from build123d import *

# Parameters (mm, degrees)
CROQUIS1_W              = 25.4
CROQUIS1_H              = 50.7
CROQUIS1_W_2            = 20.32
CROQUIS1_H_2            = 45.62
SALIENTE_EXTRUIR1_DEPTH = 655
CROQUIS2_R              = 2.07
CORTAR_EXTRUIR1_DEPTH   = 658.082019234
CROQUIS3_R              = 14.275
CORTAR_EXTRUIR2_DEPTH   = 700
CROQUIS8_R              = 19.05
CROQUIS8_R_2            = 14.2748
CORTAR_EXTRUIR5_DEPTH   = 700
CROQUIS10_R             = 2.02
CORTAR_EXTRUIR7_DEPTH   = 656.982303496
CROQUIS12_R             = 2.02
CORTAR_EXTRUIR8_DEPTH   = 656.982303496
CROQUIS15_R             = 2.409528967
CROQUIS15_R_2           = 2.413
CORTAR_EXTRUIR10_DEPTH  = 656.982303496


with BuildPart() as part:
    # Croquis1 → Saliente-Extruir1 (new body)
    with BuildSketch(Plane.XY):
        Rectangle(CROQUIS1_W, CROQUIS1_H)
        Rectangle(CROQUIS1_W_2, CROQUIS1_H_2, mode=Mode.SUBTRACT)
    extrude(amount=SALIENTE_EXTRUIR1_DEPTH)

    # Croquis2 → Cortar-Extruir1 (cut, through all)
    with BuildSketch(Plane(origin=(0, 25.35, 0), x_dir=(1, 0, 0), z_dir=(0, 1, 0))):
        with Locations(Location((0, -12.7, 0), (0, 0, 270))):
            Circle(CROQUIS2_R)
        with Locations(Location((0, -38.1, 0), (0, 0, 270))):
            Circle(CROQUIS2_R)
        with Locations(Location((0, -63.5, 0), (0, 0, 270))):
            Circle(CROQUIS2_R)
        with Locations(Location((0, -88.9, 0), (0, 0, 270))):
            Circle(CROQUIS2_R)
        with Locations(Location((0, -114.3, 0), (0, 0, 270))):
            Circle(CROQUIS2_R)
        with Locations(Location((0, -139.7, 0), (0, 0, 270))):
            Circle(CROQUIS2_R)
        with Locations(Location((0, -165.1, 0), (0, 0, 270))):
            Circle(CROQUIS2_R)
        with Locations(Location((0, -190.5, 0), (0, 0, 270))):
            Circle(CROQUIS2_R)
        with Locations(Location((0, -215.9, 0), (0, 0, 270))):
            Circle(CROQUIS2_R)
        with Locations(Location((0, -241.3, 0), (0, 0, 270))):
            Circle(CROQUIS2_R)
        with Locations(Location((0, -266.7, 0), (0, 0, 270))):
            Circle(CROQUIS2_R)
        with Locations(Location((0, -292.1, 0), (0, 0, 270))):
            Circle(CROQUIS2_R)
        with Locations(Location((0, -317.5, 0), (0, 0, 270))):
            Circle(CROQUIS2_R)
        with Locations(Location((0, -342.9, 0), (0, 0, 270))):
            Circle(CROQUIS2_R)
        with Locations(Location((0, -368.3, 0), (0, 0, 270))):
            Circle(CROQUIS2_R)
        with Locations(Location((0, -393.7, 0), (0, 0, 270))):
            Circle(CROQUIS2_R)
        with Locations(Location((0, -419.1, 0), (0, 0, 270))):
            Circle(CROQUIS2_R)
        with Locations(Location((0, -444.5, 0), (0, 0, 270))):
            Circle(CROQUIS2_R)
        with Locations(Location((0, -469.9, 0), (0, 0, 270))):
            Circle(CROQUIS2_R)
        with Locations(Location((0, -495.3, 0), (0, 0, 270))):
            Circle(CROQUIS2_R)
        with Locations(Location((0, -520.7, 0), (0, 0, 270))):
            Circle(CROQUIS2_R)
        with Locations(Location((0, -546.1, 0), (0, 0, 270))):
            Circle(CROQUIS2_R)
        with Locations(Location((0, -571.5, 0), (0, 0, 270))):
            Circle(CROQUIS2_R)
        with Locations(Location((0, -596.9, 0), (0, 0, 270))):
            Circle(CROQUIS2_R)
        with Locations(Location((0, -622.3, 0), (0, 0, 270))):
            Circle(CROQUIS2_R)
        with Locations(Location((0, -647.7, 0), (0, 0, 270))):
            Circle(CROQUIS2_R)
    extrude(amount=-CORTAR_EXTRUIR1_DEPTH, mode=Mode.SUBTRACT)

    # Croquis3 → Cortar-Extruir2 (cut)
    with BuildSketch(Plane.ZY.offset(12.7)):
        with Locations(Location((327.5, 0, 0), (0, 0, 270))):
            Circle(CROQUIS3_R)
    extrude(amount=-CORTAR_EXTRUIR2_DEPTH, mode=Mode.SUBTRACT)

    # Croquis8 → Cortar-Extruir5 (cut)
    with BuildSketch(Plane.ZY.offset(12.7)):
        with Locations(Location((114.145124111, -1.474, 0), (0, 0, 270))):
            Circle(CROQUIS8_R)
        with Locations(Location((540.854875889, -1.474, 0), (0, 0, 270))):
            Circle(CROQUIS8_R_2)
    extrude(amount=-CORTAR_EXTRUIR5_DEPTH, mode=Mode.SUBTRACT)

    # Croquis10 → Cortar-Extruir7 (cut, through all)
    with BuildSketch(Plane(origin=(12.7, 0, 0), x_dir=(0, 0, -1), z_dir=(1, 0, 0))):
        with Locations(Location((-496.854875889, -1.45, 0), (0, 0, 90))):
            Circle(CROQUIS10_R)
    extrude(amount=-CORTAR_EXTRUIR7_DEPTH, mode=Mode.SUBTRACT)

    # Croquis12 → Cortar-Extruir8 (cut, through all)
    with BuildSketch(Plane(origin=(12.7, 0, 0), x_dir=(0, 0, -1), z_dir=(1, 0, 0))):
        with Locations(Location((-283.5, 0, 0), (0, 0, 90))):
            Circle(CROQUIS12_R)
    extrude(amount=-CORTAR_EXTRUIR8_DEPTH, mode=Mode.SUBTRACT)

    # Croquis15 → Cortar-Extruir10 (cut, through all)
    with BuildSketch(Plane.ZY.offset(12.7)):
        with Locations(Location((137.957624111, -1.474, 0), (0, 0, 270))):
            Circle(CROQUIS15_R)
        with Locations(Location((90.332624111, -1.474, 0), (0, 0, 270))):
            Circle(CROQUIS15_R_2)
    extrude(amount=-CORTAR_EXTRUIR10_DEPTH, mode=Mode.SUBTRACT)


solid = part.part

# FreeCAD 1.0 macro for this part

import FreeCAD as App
import Part
import Sketcher

V = App.Vector
Q = App.Units.Quantity

doc = App.newDocument("Part")
body = doc.addObject("PartDesign::Body", "Body")

# Sketch on XY plane
sketch1 = doc.addObject("Sketcher::SketchObject", "Sketch")
body.addObject(sketch1)
sketch1.AttachmentSupport = (doc.XY_Plane, [""])
sketch1.MapMode = "FlatFace"
sketch1.addGeometry(Part.LineSegment(V(-13, 25, 0), V(-13, -25, 0)), False)
sketch1.addGeometry(Part.LineSegment(V(-13, -25, 0), V(13, -25, 0)), False)
sketch1.addGeometry(Part.LineSegment(V(13, -25, 0), V(13, 25, 0)), False)
sketch1.addGeometry(Part.LineSegment(V(13, 25, 0), V(-13, 25, 0)), False)
sketch1.addGeometry(Part.LineSegment(V(10, -23, 0), V(-10, -23, 0)), False)
sketch1.addGeometry(Part.LineSegment(V(-10, -23, 0), V(-10, 23, 0)), False)
sketch1.addGeometry(Part.LineSegment(V(-10, 23, 0), V(10, 23, 0)), False)
sketch1.addGeometry(Part.LineSegment(V(10, 23, 0), V(10, -23, 0)), False)
sketch1.addConstraint(Sketcher.Constraint("Coincident", 0, 2, 1, 1))
sketch1.addConstraint(Sketcher.Constraint("Coincident", 1, 2, 2, 1))
sketch1.addConstraint(Sketcher.Constraint("Coincident", 2, 2, 3, 1))
sketch1.addConstraint(Sketcher.Constraint("Coincident", 3, 2, 0, 1))
sketch1.addConstraint(Sketcher.Constraint("Coincident", 4, 2, 5, 1))
sketch1.addConstraint(Sketcher.Constraint("Coincident", 5, 2, 6, 1))
sketch1.addConstraint(Sketcher.Constraint("Coincident", 6, 2, 7, 1))
sketch1.addConstraint(Sketcher.Constraint("Coincident", 7, 2, 4, 1))
sketch1.addConstraint(Sketcher.Constraint("Vertical", 0))
sketch1.addConstraint(Sketcher.Constraint("Horizontal", 1))
sketch1.addConstraint(Sketcher.Constraint("Vertical", 2))
sketch1.addConstraint(Sketcher.Constraint("Horizontal", 3))
sketch1.addConstraint(Sketcher.Constraint("Horizontal", 4))
sketch1.addConstraint(Sketcher.Constraint("Vertical", 5))
sketch1.addConstraint(Sketcher.Constraint("Horizontal", 6))
sketch1.addConstraint(Sketcher.Constraint("Vertical", 7))
sketch1.addConstraint(Sketcher.Constraint("Symmetric", 0, 2, 2, 2, -1, 1))
sketch1.addConstraint(Sketcher.Constraint("Symmetric", 4, 2, 6, 2, -1, 1))
sketch1.addConstraint(Sketcher.Constraint("DistanceX", 1, 1, 1, 2, Q("1 in")))
sketch1.addConstraint(Sketcher.Constraint("DistanceX", 4, 2, 4, 1, Q("0.8 in")))
sketch1.addConstraint(Sketcher.Constraint("DistanceY", 0, 2, 4, 2, Q("0.1 in")))
sketch1.addConstraint(Sketcher.Constraint("DistanceY", 0, 2, 0, 1, 50.7))
pad1 = doc.addObject("PartDesign::Pad", "Pad")
body.addObject(pad1)
pad1.Profile = sketch1
pad1.Length = 655

# Sketch on XZ plane
sketch2 = doc.addObject("Sketcher::SketchObject", "Sketch001")
body.addObject(sketch2)
sketch2.AttachmentSupport = (doc.XZ_Plane, [""])
sketch2.MapMode = "FlatFace"
sketch2.AttachmentOffset = App.Placement(V(0, 0, -25.35), App.Rotation())
sketch2.addGeometry(Part.Circle(V(0, 12.7, 0), V(0, 0, 1), 2.1), False)
sketch2.addGeometry(Part.Circle(V(0, 38.1, 0), V(0, 0, 1), 2.1), False)
sketch2.addGeometry(Part.Circle(V(0, 63.5, 0), V(0, 0, 1), 2.1), False)
sketch2.addGeometry(Part.Circle(V(0, 88.9, 0), V(0, 0, 1), 2.1), False)
sketch2.addGeometry(Part.Circle(V(0, 114.3, 0), V(0, 0, 1), 2.1), False)
sketch2.addGeometry(Part.Circle(V(0, 139.7, 0), V(0, 0, 1), 2.1), False)
sketch2.addGeometry(Part.Circle(V(0, 165.1, 0), V(0, 0, 1), 2.1), False)
sketch2.addGeometry(Part.Circle(V(0, 190.5, 0), V(0, 0, 1), 2.1), False)
sketch2.addGeometry(Part.Circle(V(0, 215.9, 0), V(0, 0, 1), 2.1), False)
sketch2.addGeometry(Part.Circle(V(0, 241.3, 0), V(0, 0, 1), 2.1), False)
sketch2.addGeometry(Part.Circle(V(0, 266.7, 0), V(0, 0, 1), 2.1), False)
sketch2.addGeometry(Part.Circle(V(0, 292.1, 0), V(0, 0, 1), 2.1), False)
sketch2.addGeometry(Part.Circle(V(0, 317.5, 0), V(0, 0, 1), 2.1), False)
sketch2.addGeometry(Part.Circle(V(0, 342.9, 0), V(0, 0, 1), 2.1), False)
sketch2.addGeometry(Part.Circle(V(0, 368.3, 0), V(0, 0, 1), 2.1), False)
sketch2.addGeometry(Part.Circle(V(0, 393.7, 0), V(0, 0, 1), 2.1), False)
sketch2.addGeometry(Part.Circle(V(0, 419.1, 0), V(0, 0, 1), 2.1), False)
sketch2.addGeometry(Part.Circle(V(0, 444.5, 0), V(0, 0, 1), 2.1), False)
sketch2.addGeometry(Part.Circle(V(0, 469.9, 0), V(0, 0, 1), 2.1), False)
sketch2.addGeometry(Part.Circle(V(0, 495.3, 0), V(0, 0, 1), 2.1), False)
sketch2.addGeometry(Part.Circle(V(0, 520.7, 0), V(0, 0, 1), 2.1), False)
sketch2.addGeometry(Part.Circle(V(0, 546.1, 0), V(0, 0, 1), 2.1), False)
sketch2.addGeometry(Part.Circle(V(0, 571.5, 0), V(0, 0, 1), 2.1), False)
sketch2.addGeometry(Part.Circle(V(0, 596.9, 0), V(0, 0, 1), 2.1), False)
sketch2.addGeometry(Part.Circle(V(0, 622.3, 0), V(0, 0, 1), 2.1), False)
sketch2.addGeometry(Part.Circle(V(0, 647.7, 0), V(0, 0, 1), 2.1), False)
sketch2.addConstraint(Sketcher.Constraint("Equal", 0, 1))
sketch2.addConstraint(Sketcher.Constraint("Equal", 1, 2))
sketch2.addConstraint(Sketcher.Constraint("Equal", 2, 3))
sketch2.addConstraint(Sketcher.Constraint("Equal", 3, 4))
sketch2.addConstraint(Sketcher.Constraint("Equal", 4, 5))
sketch2.addConstraint(Sketcher.Constraint("Equal", 5, 6))
sketch2.addConstraint(Sketcher.Constraint("Equal", 6, 7))
sketch2.addConstraint(Sketcher.Constraint("Equal", 7, 8))
sketch2.addConstraint(Sketcher.Constraint("Equal", 8, 9))
sketch2.addConstraint(Sketcher.Constraint("Equal", 9, 10))
sketch2.addConstraint(Sketcher.Constraint("Equal", 10, 11))
sketch2.addConstraint(Sketcher.Constraint("Equal", 11, 12))
sketch2.addConstraint(Sketcher.Constraint("Equal", 12, 13))
sketch2.addConstraint(Sketcher.Constraint("Equal", 13, 14))
sketch2.addConstraint(Sketcher.Constraint("Equal", 14, 15))
sketch2.addConstraint(Sketcher.Constraint("Equal", 15, 16))
sketch2.addConstraint(Sketcher.Constraint("Equal", 16, 17))
sketch2.addConstraint(Sketcher.Constraint("Equal", 17, 18))
sketch2.addConstraint(Sketcher.Constraint("Equal", 18, 19))
sketch2.addConstraint(Sketcher.Constraint("Equal", 19, 20))
sketch2.addConstraint(Sketcher.Constraint("Equal", 20, 21))
sketch2.addConstraint(Sketcher.Constraint("Equal", 21, 22))
sketch2.addConstraint(Sketcher.Constraint("Equal", 22, 23))
sketch2.addConstraint(Sketcher.Constraint("Equal", 23, 24))
sketch2.addConstraint(Sketcher.Constraint("Equal", 24, 25))
sketch2.addConstraint(Sketcher.Constraint("PointOnObject", 0, 3, -2))
sketch2.addConstraint(Sketcher.Constraint("PointOnObject", 1, 3, -2))
sketch2.addConstraint(Sketcher.Constraint("PointOnObject", 2, 3, -2))
sketch2.addConstraint(Sketcher.Constraint("PointOnObject", 3, 3, -2))
sketch2.addConstraint(Sketcher.Constraint("PointOnObject", 4, 3, -2))
sketch2.addConstraint(Sketcher.Constraint("PointOnObject", 5, 3, -2))
sketch2.addConstraint(Sketcher.Constraint("PointOnObject", 6, 3, -2))
sketch2.addConstraint(Sketcher.Constraint("PointOnObject", 7, 3, -2))
sketch2.addConstraint(Sketcher.Constraint("PointOnObject", 8, 3, -2))
sketch2.addConstraint(Sketcher.Constraint("PointOnObject", 9, 3, -2))
sketch2.addConstraint(Sketcher.Constraint("PointOnObject", 10, 3, -2))
sketch2.addConstraint(Sketcher.Constraint("PointOnObject", 11, 3, -2))
sketch2.addConstraint(Sketcher.Constraint("PointOnObject", 12, 3, -2))
sketch2.addConstraint(Sketcher.Constraint("PointOnObject", 13, 3, -2))
sketch2.addConstraint(Sketcher.Constraint("PointOnObject", 14, 3, -2))
sketch2.addConstraint(Sketcher.Constraint("PointOnObject", 15, 3, -2))
sketch2.addConstraint(Sketcher.Constraint("PointOnObject", 16, 3, -2))
sketch2.addConstraint(Sketcher.Constraint("PointOnObject", 17, 3, -2))
sketch2.addConstraint(Sketcher.Constraint("PointOnObject", 18, 3, -2))
sketch2.addConstraint(Sketcher.Constraint("PointOnObject", 19, 3, -2))
sketch2.addConstraint(Sketcher.Constraint("PointOnObject", 20, 3, -2))
sketch2.addConstraint(Sketcher.Constraint("PointOnObject", 21, 3, -2))
sketch2.addConstraint(Sketcher.Constraint("PointOnObject", 22, 3, -2))
sketch2.addConstraint(Sketcher.Constraint("PointOnObject", 23, 3, -2))
sketch2.addConstraint(Sketcher.Constraint("PointOnObject", 24, 3, -2))
sketch2.addConstraint(Sketcher.Constraint("PointOnObject", 25, 3, -2))
sketch2.addConstraint(Sketcher.Constraint("DistanceY", 0, 3, 1, 3, Q("1 in")))
sketch2.addConstraint(Sketcher.Constraint("DistanceY", 1, 3, 2, 3, Q("1 in")))
sketch2.addConstraint(Sketcher.Constraint("DistanceY", 2, 3, 3, 3, Q("1 in")))
sketch2.addConstraint(Sketcher.Constraint("DistanceY", 3, 3, 4, 3, Q("1 in")))
sketch2.addConstraint(Sketcher.Constraint("DistanceY", 4, 3, 5, 3, Q("1 in")))
sketch2.addConstraint(Sketcher.Constraint("DistanceY", 5, 3, 6, 3, Q("1 in")))
sketch2.addConstraint(Sketcher.Constraint("DistanceY", 6, 3, 7, 3, Q("1 in")))
sketch2.addConstraint(Sketcher.Constraint("DistanceY", 7, 3, 8, 3, Q("1 in")))
sketch2.addConstraint(Sketcher.Constraint("DistanceY", 8, 3, 9, 3, Q("1 in")))
sketch2.addConstraint(Sketcher.Constraint("DistanceY", 9, 3, 10, 3, Q("1 in")))
sketch2.addConstraint(Sketcher.Constraint("DistanceY", 10, 3, 11, 3, Q("1 in")))
sketch2.addConstraint(Sketcher.Constraint("DistanceY", 11, 3, 12, 3, Q("1 in")))
sketch2.addConstraint(Sketcher.Constraint("DistanceY", 12, 3, 13, 3, Q("1 in")))
sketch2.addConstraint(Sketcher.Constraint("DistanceY", 13, 3, 14, 3, Q("1 in")))
sketch2.addConstraint(Sketcher.Constraint("DistanceY", 14, 3, 15, 3, Q("1 in")))
sketch2.addConstraint(Sketcher.Constraint("DistanceY", 15, 3, 16, 3, Q("1 in")))
sketch2.addConstraint(Sketcher.Constraint("DistanceY", 16, 3, 17, 3, Q("1 in")))
sketch2.addConstraint(Sketcher.Constraint("DistanceY", 17, 3, 18, 3, Q("1 in")))
sketch2.addConstraint(Sketcher.Constraint("DistanceY", 18, 3, 19, 3, Q("1 in")))
sketch2.addConstraint(Sketcher.Constraint("DistanceY", 19, 3, 20, 3, Q("1 in")))
sketch2.addConstraint(Sketcher.Constraint("DistanceY", 20, 3, 21, 3, Q("1 in")))
sketch2.addConstraint(Sketcher.Constraint("DistanceY", 21, 3, 22, 3, Q("1 in")))
sketch2.addConstraint(Sketcher.Constraint("DistanceY", 22, 3, 23, 3, Q("1 in")))
sketch2.addConstraint(Sketcher.Constraint("DistanceY", 23, 3, 24, 3, Q("1 in")))
sketch2.addConstraint(Sketcher.Constraint("DistanceY", 24, 3, 25, 3, Q("1 in")))
sketch2.addConstraint(Sketcher.Constraint("DistanceY", -1, 1, 0, 3, Q("0.5 in")))
sketch2.addConstraint(Sketcher.Constraint("Diameter", 0, 4.14))
pocket1 = doc.addObject("PartDesign::Pocket", "Pocket")
body.addObject(pocket1)
pocket1.Profile = sketch2
pocket1.Type = "ThroughAll"
pocket1.Reversed = True

# Sketch on YZ plane
sketch3 = doc.addObject("Sketcher::SketchObject", "Sketch002")
body.addObject(sketch3)
sketch3.AttachmentSupport = (doc.YZ_Plane, [""])
sketch3.MapMode = "FlatFace"
sketch3.AttachmentOffset = App.Placement(V(0, 0, -0.5 * 25.4), App.Rotation())
sketch3.addGeometry(Part.Circle(V(0, 328, 0), V(0, 0, 1), 14), False)
sketch3.addConstraint(Sketcher.Constraint("PointOnObject", 0, 3, -2))
sketch3.addConstraint(Sketcher.Constraint("Diameter", 0, 28.55))
sketch3.addConstraint(Sketcher.Constraint("DistanceY", -1, 1, 0, 3, 327.5))
pocket2 = doc.addObject("PartDesign::Pocket", "Pocket001")
body.addObject(pocket2)
pocket2.Profile = sketch3
pocket2.Length = 700
pocket2.Reversed = True

# Sketch on YZ plane
sketch4 = doc.addObject("Sketcher::SketchObject", "Sketch003")
body.addObject(sketch4)
sketch4.AttachmentSupport = (doc.YZ_Plane, [""])
sketch4.MapMode = "FlatFace"
sketch4.AttachmentOffset = App.Placement(V(0, 0, -0.5 * 25.4), App.Rotation())
sketch4.addGeometry(Part.Circle(V(-1, 114, 0), V(0, 0, 1), 19), False)
sketch4.addGeometry(Part.Circle(V(-1, 541, 0), V(0, 0, 1), 14), False)
sketch4.addConstraint(Sketcher.Constraint("Vertical", 0, 3, 1, 3))
sketch4.addConstraint(Sketcher.Constraint("Diameter", 0, Q("1.5 in")))
sketch4.addConstraint(Sketcher.Constraint("Diameter", 1, Q("1.124 in")))
sketch4.addConstraint(Sketcher.Constraint("DistanceX", 0, 3, -1, 1, 1.474))
sketch4.addConstraint(Sketcher.Constraint("DistanceY", 0, 3, 1, 3, 426.709752))
sketch4.addConstraint(Sketcher.Constraint("DistanceY", -1, 1, 0, 3, 114.145124))
pocket3 = doc.addObject("PartDesign::Pocket", "Pocket002")
body.addObject(pocket3)
pocket3.Profile = sketch4
pocket3.Length = 700
pocket3.Reversed = True

# Sketch on YZ plane
sketch5 = doc.addObject("Sketcher::SketchObject", "Sketch004")
body.addObject(sketch5)
sketch5.AttachmentSupport = (doc.YZ_Plane, [""])
sketch5.MapMode = "FlatFace"
sketch5.AttachmentOffset = App.Placement(V(0, 0, 0.5 * 25.4), App.Rotation())
sketch5.addGeometry(Part.Circle(V(-1.4, 496.9, 0), V(0, 0, 1), 2), False)
sketch5.addConstraint(Sketcher.Constraint("Diameter", 0, 4.04))
sketch5.addConstraint(Sketcher.Constraint("DistanceX", 0, 3, -1, 1, 1.45))
sketch5.addConstraint(Sketcher.Constraint("DistanceY", -1, 1, 0, 3, 496.854876))
pocket4 = doc.addObject("PartDesign::Pocket", "Pocket003")
body.addObject(pocket4)
pocket4.Profile = sketch5
pocket4.Type = "ThroughAll"

# Sketch on YZ plane
sketch6 = doc.addObject("Sketcher::SketchObject", "Sketch005")
body.addObject(sketch6)
sketch6.AttachmentSupport = (doc.YZ_Plane, [""])
sketch6.MapMode = "FlatFace"
sketch6.AttachmentOffset = App.Placement(V(0, 0, 0.5 * 25.4), App.Rotation())
sketch6.addGeometry(Part.Circle(V(0, 283.5, 0), V(0, 0, 1), 2), False)
sketch6.addConstraint(Sketcher.Constraint("PointOnObject", 0, 3, -2))
sketch6.addConstraint(Sketcher.Constraint("Diameter", 0, 4.04))
sketch6.addConstraint(Sketcher.Constraint("DistanceY", -1, 1, 0, 3, 283.5))
pocket5 = doc.addObject("PartDesign::Pocket", "Pocket004")
body.addObject(pocket5)
pocket5.Profile = sketch6
pocket5.Type = "ThroughAll"

# Sketch on YZ plane
sketch7 = doc.addObject("Sketcher::SketchObject", "Sketch006")
body.addObject(sketch7)
sketch7.AttachmentSupport = (doc.YZ_Plane, [""])
sketch7.MapMode = "FlatFace"
sketch7.AttachmentOffset = App.Placement(V(0, 0, -0.5 * 25.4), App.Rotation())
sketch7.addGeometry(Part.Circle(V(-1.5, 138, 0), V(0, 0, 1), 2.4), False)
sketch7.addGeometry(Part.Circle(V(-1.5, 90.3, 0), V(0, 0, 1), 2.4), False)
sketch7.addConstraint(Sketcher.Constraint("Vertical", 0, 3, 1, 3))
sketch7.addConstraint(Sketcher.Constraint("Diameter", 1, Q("0.19 in")))
sketch7.addConstraint(Sketcher.Constraint("DistanceY", 1, 3, 0, 3, Q("1.875 in")))
sketch7.addConstraint(Sketcher.Constraint("Diameter", 0, 4.819058))
sketch7.addConstraint(Sketcher.Constraint("DistanceX", 0, 3, -1, 1, 1.474))
sketch7.addConstraint(Sketcher.Constraint("DistanceY", -1, 1, 0, 3, 137.957624))
pocket6 = doc.addObject("PartDesign::Pocket", "Pocket005")
body.addObject(pocket6)
pocket6.Profile = sketch7
pocket6.Type = "ThroughAll"
pocket6.Reversed = True

doc.recompute()
